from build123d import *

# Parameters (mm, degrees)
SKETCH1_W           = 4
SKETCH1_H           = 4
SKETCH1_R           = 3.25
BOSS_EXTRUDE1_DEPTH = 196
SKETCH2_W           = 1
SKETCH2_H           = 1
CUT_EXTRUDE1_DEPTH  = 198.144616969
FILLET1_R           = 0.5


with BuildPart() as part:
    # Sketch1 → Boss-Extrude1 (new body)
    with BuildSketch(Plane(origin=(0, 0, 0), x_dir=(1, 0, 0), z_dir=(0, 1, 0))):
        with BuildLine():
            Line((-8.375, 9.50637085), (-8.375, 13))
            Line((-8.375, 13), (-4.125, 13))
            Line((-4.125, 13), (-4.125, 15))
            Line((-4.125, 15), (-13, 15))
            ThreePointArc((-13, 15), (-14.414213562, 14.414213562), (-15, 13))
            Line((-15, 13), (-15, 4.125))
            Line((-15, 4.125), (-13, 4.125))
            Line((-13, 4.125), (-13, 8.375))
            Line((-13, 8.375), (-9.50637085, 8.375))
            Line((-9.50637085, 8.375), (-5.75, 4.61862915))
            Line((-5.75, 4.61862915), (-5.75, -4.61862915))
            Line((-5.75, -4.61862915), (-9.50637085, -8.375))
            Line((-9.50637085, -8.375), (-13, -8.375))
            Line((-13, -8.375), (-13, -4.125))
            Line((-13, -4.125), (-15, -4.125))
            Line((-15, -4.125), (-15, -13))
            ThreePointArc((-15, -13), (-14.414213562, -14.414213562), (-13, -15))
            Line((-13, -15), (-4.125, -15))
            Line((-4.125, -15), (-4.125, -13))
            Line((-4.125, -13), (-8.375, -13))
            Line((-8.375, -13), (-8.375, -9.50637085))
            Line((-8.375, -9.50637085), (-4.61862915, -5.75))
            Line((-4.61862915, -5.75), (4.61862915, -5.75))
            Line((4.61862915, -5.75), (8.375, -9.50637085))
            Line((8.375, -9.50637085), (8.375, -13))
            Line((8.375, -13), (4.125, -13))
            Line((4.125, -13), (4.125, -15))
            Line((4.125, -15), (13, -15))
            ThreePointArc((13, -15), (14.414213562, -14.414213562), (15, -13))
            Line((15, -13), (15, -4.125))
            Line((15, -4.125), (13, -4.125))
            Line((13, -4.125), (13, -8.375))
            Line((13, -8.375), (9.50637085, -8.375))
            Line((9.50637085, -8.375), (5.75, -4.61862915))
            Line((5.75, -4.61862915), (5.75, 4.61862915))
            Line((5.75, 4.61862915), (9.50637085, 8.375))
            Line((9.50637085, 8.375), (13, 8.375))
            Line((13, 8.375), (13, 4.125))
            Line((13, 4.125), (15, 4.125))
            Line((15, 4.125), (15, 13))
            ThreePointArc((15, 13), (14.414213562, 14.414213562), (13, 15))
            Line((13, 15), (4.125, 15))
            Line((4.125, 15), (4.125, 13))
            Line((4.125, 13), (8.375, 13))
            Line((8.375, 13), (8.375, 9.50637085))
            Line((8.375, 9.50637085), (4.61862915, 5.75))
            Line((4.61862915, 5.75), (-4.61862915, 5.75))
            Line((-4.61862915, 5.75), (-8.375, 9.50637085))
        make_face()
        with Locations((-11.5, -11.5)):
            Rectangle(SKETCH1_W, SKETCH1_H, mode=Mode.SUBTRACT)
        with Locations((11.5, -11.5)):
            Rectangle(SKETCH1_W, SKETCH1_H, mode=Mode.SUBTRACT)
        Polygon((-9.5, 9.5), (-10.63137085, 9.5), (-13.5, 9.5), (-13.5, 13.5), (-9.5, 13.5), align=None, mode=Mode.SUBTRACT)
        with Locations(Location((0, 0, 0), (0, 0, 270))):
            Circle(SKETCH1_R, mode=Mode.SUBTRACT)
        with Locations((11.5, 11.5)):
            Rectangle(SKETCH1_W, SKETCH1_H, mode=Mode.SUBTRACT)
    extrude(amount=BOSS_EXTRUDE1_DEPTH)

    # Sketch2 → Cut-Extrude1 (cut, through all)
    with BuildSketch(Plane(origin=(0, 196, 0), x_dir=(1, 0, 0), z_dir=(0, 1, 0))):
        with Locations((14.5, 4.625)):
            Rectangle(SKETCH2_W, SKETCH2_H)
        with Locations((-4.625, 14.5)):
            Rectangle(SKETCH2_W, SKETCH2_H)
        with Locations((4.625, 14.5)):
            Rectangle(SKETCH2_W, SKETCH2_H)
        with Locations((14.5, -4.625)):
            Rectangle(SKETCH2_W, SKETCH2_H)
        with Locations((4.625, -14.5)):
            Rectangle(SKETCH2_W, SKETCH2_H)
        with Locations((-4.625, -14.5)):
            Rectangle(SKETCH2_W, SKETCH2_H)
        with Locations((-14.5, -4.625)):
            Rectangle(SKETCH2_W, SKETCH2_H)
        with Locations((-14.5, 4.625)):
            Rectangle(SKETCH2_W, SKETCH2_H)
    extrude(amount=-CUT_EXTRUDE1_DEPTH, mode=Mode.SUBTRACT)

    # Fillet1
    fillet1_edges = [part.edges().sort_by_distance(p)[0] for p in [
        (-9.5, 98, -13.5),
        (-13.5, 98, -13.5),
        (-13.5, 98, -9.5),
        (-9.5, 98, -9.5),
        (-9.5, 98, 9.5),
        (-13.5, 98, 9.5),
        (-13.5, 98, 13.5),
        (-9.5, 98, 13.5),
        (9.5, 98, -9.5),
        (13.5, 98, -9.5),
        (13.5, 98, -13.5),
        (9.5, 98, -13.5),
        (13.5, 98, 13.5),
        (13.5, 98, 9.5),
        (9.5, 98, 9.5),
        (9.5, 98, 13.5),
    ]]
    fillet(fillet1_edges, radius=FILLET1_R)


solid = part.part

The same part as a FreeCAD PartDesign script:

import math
import FreeCAD as App
import Part
import Sketcher

V = App.Vector
Q = App.Units.Quantity


def edges_at(feature, points):
    """Names of the edges that pass closest to the given points."""
    edges = feature.Shape.Edges
    near = lambda p: min(range(len(edges)), key=lambda i: edges[i].distToShape(Part.Vertex(*p))[0])
    return sorted({f"Edge{near(p) + 1}" for p in points})


def add_polygon(sketch, points):
    """Adds a closed chain of lines whose ends are joined by coincident constraints."""
    first, n = sketch.GeometryCount, len(points)
    for a, b in zip(points, points[1:] + points[:1]):
        sketch.addGeometry(Part.LineSegment(App.Vector(*a, 0), App.Vector(*b, 0)), False)
    for i in range(n):
        sketch.addConstraint(Sketcher.Constraint("Coincident", first + i, 2, first + (i + 1) % n, 1))

doc = App.newDocument("Part")
params = doc.addObject("Spreadsheet::Sheet", "Params")
for row, (alias, value) in enumerate([
    ("sketch1_radius", "2 mm"),
    ("sketch1_diameter", "6.5 mm"),
    ("sketch1_width", "4 mm"),
    ("sketch1_width2", "4.25 mm"),
    ("pad1_length", "196 mm"),
    ("sketch2_width", "1 mm"),
    ("fillet_radius", "0.5 mm"),
], start=1):
    params.set(f"A{row}", alias)
    params.set(f"B{row}", "=" + value)
    params.setAlias(f"B{row}", alias)

body = doc.addObject("PartDesign::Body", "Body")

# Sketch on XZ plane
sketch1 = body.newObject("Sketcher::SketchObject", "Sketch")
sketch1.AttachmentSupport = (doc.getObject("XZ_Plane"), [""])
sketch1.MapMode = "FlatFace"
sketch1.addGeometry(Part.LineSegment(V(-8.375, -9.506371, 0), V(-8.375, -13, 0)), False)  # 0
sketch1.addGeometry(Part.LineSegment(V(-8.375, -13, 0), V(-4.125, -13, 0)), False)  # 1
sketch1.addGeometry(Part.LineSegment(V(-4.125, -13, 0), V(-4.125, -15, 0)), False)  # 2
sketch1.addGeometry(Part.LineSegment(V(-4.125, -15, 0), V(-13, -15, 0)), False)  # 3
sketch1.addGeometry(Part.ArcOfCircle(Part.Circle(V(-13, -13, 0), V(0, 0, 1), 2), math.radians(-180), math.radians(-90)), False)  # 4
sketch1.addGeometry(Part.LineSegment(V(-15, -13, 0), V(-15, -4.125, 0)), False)  # 5
sketch1.addGeometry(Part.LineSegment(V(-15, -4.125, 0), V(-13, -4.125, 0)), False)  # 6
sketch1.addGeometry(Part.LineSegment(V(-13, -4.125, 0), V(-13, -8.375, 0)), False)  # 7
sketch1.addGeometry(Part.LineSegment(V(-13, -8.375, 0), V(-9.506371, -8.375, 0)), False)  # 8
sketch1.addGeometry(Part.LineSegment(V(-9.506371, -8.375, 0), V(-5.75, -4.618629, 0)), False)  # 9
sketch1.addGeometry(Part.LineSegment(V(-5.75, -4.618629, 0), V(-5.75, 4.618629, 0)), False)  # 10
sketch1.addGeometry(Part.LineSegment(V(-5.75, 4.618629, 0), V(-9.506371, 8.375, 0)), False)  # 11
sketch1.addGeometry(Part.LineSegment(V(-9.506371, 8.375, 0), V(-13, 8.375, 0)), False)  # 12
sketch1.addGeometry(Part.LineSegment(V(-13, 8.375, 0), V(-13, 4.125, 0)), False)  # 13
sketch1.addGeometry(Part.LineSegment(V(-13, 4.125, 0), V(-15, 4.125, 0)), False)  # 14
sketch1.addGeometry(Part.LineSegment(V(-15, 4.125, 0), V(-15, 13, 0)), False)  # 15
sketch1.addGeometry(Part.ArcOfCircle(Part.Circle(V(-13, 13, 0), V(0, 0, 1), 2), math.radians(90), math.radians(180)), False)  # 16
sketch1.addGeometry(Part.LineSegment(V(-13, 15, 0), V(-4.125, 15, 0)), False)  # 17
sketch1.addGeometry(Part.LineSegment(V(-4.125, 15, 0), V(-4.125, 13, 0)), False)  # 18
sketch1.addGeometry(Part.LineSegment(V(-4.125, 13, 0), V(-8.375, 13, 0)), False)  # 19
sketch1.addGeometry(Part.LineSegment(V(-8.375, 13, 0), V(-8.375, 9.506371, 0)), False)  # 20
sketch1.addGeometry(Part.LineSegment(V(-8.375, 9.506371, 0), V(-4.618629, 5.75, 0)), False)  # 21
sketch1.addGeometry(Part.LineSegment(V(-4.618629, 5.75, 0), V(4.618629, 5.75, 0)), False)  # 22
sketch1.addGeometry(Part.LineSegment(V(4.618629, 5.75, 0), V(8.375, 9.506371, 0)), False)  # 23
sketch1.addGeometry(Part.LineSegment(V(8.375, 9.506371, 0), V(8.375, 13, 0)), False)  # 24
sketch1.addGeometry(Part.LineSegment(V(8.375, 13, 0), V(4.125, 13, 0)), False)  # 25
sketch1.addGeometry(Part.LineSegment(V(4.125, 13, 0), V(4.125, 15, 0)), False)  # 26
sketch1.addGeometry(Part.LineSegment(V(4.125, 15, 0), V(13, 15, 0)), False)  # 27
sketch1.addGeometry(Part.ArcOfCircle(Part.Circle(V(13, 13, 0), V(0, 0, 1), 2), math.radians(0), math.radians(90)), False)  # 28
sketch1.addGeometry(Part.LineSegment(V(15, 13, 0), V(15, 4.125, 0)), False)  # 29
sketch1.addGeometry(Part.LineSegment(V(15, 4.125, 0), V(13, 4.125, 0)), False)  # 30
sketch1.addGeometry(Part.LineSegment(V(13, 4.125, 0), V(13, 8.375, 0)), False)  # 31
sketch1.addGeometry(Part.LineSegment(V(13, 8.375, 0), V(9.506371, 8.375, 0)), False)  # 32
sketch1.addGeometry(Part.LineSegment(V(9.506371, 8.375, 0), V(5.75, 4.618629, 0)), False)  # 33
sketch1.addGeometry(Part.LineSegment(V(5.75, 4.618629, 0), V(5.75, -4.618629, 0)), False)  # 34
sketch1.addGeometry(Part.LineSegment(V(5.75, -4.618629, 0), V(9.506371, -8.375, 0)), False)  # 35
sketch1.addGeometry(Part.LineSegment(V(9.506371, -8.375, 0), V(13, -8.375, 0)), False)  # 36
sketch1.addGeometry(Part.LineSegment(V(13, -8.375, 0), V(13, -4.125, 0)), False)  # 37
sketch1.addGeometry(Part.LineSegment(V(13, -4.125, 0), V(15, -4.125, 0)), False)  # 38
sketch1.addGeometry(Part.LineSegment(V(15, -4.125, 0), V(15, -13, 0)), False)  # 39
sketch1.addGeometry(Part.ArcOfCircle(Part.Circle(V(13, -13, 0), V(0, 0, 1), 2), math.radians(-90), math.radians(0)), False)  # 40
sketch1.addGeometry(Part.LineSegment(V(13, -15, 0), V(4.125, -15, 0)), False)  # 41
sketch1.addGeometry(Part.LineSegment(V(4.125, -15, 0), V(4.125, -13, 0)), False)  # 42
sketch1.addGeometry(Part.LineSegment(V(4.125, -13, 0), V(8.375, -13, 0)), False)  # 43
sketch1.addGeometry(Part.LineSegment(V(8.375, -13, 0), V(8.375, -9.506371, 0)), False)  # 44
sketch1.addGeometry(Part.LineSegment(V(8.375, -9.506371, 0), V(4.618629, -5.75, 0)), False)  # 45
sketch1.addGeometry(Part.LineSegment(V(4.618629, -5.75, 0), V(-4.618629, -5.75, 0)), False)  # 46
sketch1.addGeometry(Part.LineSegment(V(-4.618629, -5.75, 0), V(-8.375, -9.506371, 0)), False)  # 47
add_polygon(sketch1, [(-9.5, 13.5), (-13.5, 13.5), (-13.5, 9.5), (-9.5, 9.5)])  # lines 48-51
add_polygon(sketch1, [(13.5, 13.5), (9.5, 13.5), (9.5, 9.5), (13.5, 9.5)])  # lines 52-55
add_polygon(sketch1, [(-9.5, -13.5), (-9.5, -9.5), (-13.5, -9.5), (-13.5, -13.5)])  # lines 56-59
sketch1.addGeometry(Part.Circle(V(0, 0, 0), V(0, 0, 1), 3.25), False)  # 60
add_polygon(sketch1, [(13.5, -9.5), (9.5, -9.5), (9.5, -13.5), (13.5, -13.5)])  # lines 61-64
sketch1.addConstraint(Sketcher.Constraint("Coincident", 0, 2, 1, 1))
sketch1.addConstraint(Sketcher.Constraint("Coincident", 1, 2, 2, 1))
sketch1.addConstraint(Sketcher.Constraint("Coincident", 2, 2, 3, 1))
sketch1.addConstraint(Sketcher.Constraint("Tangent", 3, 2, 4, 2))
sketch1.addConstraint(Sketcher.Constraint("Tangent", 4, 1, 5, 1))
sketch1.addConstraint(Sketcher.Constraint("Coincident", 5, 2, 6, 1))
sketch1.addConstraint(Sketcher.Constraint("Coincident", 6, 2, 7, 1))
sketch1.addConstraint(Sketcher.Constraint("Coincident", 7, 2, 8, 1))
sketch1.addConstraint(Sketcher.Constraint("Coincident", 8, 2, 9, 1))
sketch1.addConstraint(Sketcher.Constraint("Coincident", 9, 2, 10, 1))
sketch1.addConstraint(Sketcher.Constraint("Coincident", 10, 2, 11, 1))
sketch1.addConstraint(Sketcher.Constraint("Coincident", 11, 2, 12, 1))
sketch1.addConstraint(Sketcher.Constraint("Coincident", 12, 2, 13, 1))
sketch1.addConstraint(Sketcher.Constraint("Coincident", 13, 2, 14, 1))
sketch1.addConstraint(Sketcher.Constraint("Coincident", 14, 2, 15, 1))
sketch1.addConstraint(Sketcher.Constraint("Tangent", 15, 2, 16, 2))
sketch1.addConstraint(Sketcher.Constraint("Tangent", 16, 1, 17, 1))
sketch1.addConstraint(Sketcher.Constraint("Coincident", 17, 2, 18, 1))
sketch1.addConstraint(Sketcher.Constraint("Coincident", 18, 2, 19, 1))
sketch1.addConstraint(Sketcher.Constraint("Coincident", 19, 2, 20, 1))
sketch1.addConstraint(Sketcher.Constraint("Coincident", 20, 2, 21, 1))
sketch1.addConstraint(Sketcher.Constraint("Coincident", 21, 2, 22, 1))
sketch1.addConstraint(Sketcher.Constraint("Coincident", 22, 2, 23, 1))
sketch1.addConstraint(Sketcher.Constraint("Coincident", 23, 2, 24, 1))
sketch1.addConstraint(Sketcher.Constraint("Coincident", 24, 2, 25, 1))
sketch1.addConstraint(Sketcher.Constraint("Coincident", 25, 2, 26, 1))
sketch1.addConstraint(Sketcher.Constraint("Coincident", 26, 2, 27, 1))
sketch1.addConstraint(Sketcher.Constraint("Tangent", 27, 2, 28, 2))
sketch1.addConstraint(Sketcher.Constraint("Tangent", 28, 1, 29, 1))
sketch1.addConstraint(Sketcher.Constraint("Coincident", 29, 2, 30, 1))
sketch1.addConstraint(Sketcher.Constraint("Coincident", 30, 2, 31, 1))
sketch1.addConstraint(Sketcher.Constraint("Coincident", 31, 2, 32, 1))
sketch1.addConstraint(Sketcher.Constraint("Coincident", 32, 2, 33, 1))
sketch1.addConstraint(Sketcher.Constraint("Coincident", 33, 2, 34, 1))
sketch1.addConstraint(Sketcher.Constraint("Coincident", 34, 2, 35, 1))
sketch1.addConstraint(Sketcher.Constraint("Coincident", 35, 2, 36, 1))
sketch1.addConstraint(Sketcher.Constraint("Coincident", 36, 2, 37, 1))
sketch1.addConstraint(Sketcher.Constraint("Coincident", 37, 2, 38, 1))
sketch1.addConstraint(Sketcher.Constraint("Coincident", 38, 2, 39, 1))
sketch1.addConstraint(Sketcher.Constraint("Tangent", 39, 2, 40, 2))
sketch1.addConstraint(Sketcher.Constraint("Tangent", 40, 1, 41, 1))
sketch1.addConstraint(Sketcher.Constraint("Coincident", 41, 2, 42, 1))
sketch1.addConstraint(Sketcher.Constraint("Coincident", 42, 2, 43, 1))
sketch1.addConstraint(Sketcher.Constraint("Coincident", 43, 2, 44, 1))
sketch1.addConstraint(Sketcher.Constraint("Coincident", 44, 2, 45, 1))
sketch1.addConstraint(Sketcher.Constraint("Coincident", 45, 2, 46, 1))
sketch1.addConstraint(Sketcher.Constraint("Coincident", 46, 2, 47, 1))
sketch1.addConstraint(Sketcher.Constraint("Coincident", 47, 2, 0, 1))
sketch1.addConstraint(Sketcher.Constraint("Vertical", 0))
sketch1.addConstraint(Sketcher.Constraint("Horizontal", 1))
sketch1.addConstraint(Sketcher.Constraint("Vertical", 2))
sketch1.addConstraint(Sketcher.Constraint("Horizontal", 3))
sketch1.addConstraint(Sketcher.Constraint("Vertical", 5))
sketch1.addConstraint(Sketcher.Constraint("Horizontal", 6))
sketch1.addConstraint(Sketcher.Constraint("Vertical", 7))
sketch1.addConstraint(Sketcher.Constraint("Horizontal", 8))
sketch1.addConstraint(Sketcher.Constraint("Vertical", 10))
sketch1.addConstraint(Sketcher.Constraint("Horizontal", 12))
sketch1.addConstraint(Sketcher.Constraint("Vertical", 13))
sketch1.addConstraint(Sketcher.Constraint("Horizontal", 14))
sketch1.addConstraint(Sketcher.Constraint("Vertical", 15))
sketch1.addConstraint(Sketcher.Constraint("Horizontal", 17))
sketch1.addConstraint(Sketcher.Constraint("Vertical", 18))
sketch1.addConstraint(Sketcher.Constraint("Horizontal", 19))
sketch1.addConstraint(Sketcher.Constraint("Vertical", 20))
sketch1.addConstraint(Sketcher.Constraint("Horizontal", 22))
sketch1.addConstraint(Sketcher.Constraint("Vertical", 24))
sketch1.addConstraint(Sketcher.Constraint("Horizontal", 25))
sketch1.addConstraint(Sketcher.Constraint("Vertical", 26))
sketch1.addConstraint(Sketcher.Constraint("Horizontal", 27))
sketch1.addConstraint(Sketcher.Constraint("Vertical", 29))
sketch1.addConstraint(Sketcher.Constraint("Horizontal", 30))
sketch1.addConstraint(Sketcher.Constraint("Vertical", 31))
sketch1.addConstraint(Sketcher.Constraint("Horizontal", 32))
sketch1.addConstraint(Sketcher.Constraint("Vertical", 34))
sketch1.addConstraint(Sketcher.Constraint("Horizontal", 36))
sketch1.addConstraint(Sketcher.Constraint("Vertical", 37))
sketch1.addConstraint(Sketcher.Constraint("Horizontal", 38))
sketch1.addConstraint(Sketcher.Constraint("Vertical", 39))
sketch1.addConstraint(Sketcher.Constraint("Horizontal", 41))
sketch1.addConstraint(Sketcher.Constraint("Vertical", 42))
sketch1.addConstraint(Sketcher.Constraint("Horizontal", 43))
sketch1.addConstraint(Sketcher.Constraint("Vertical", 44))
sketch1.addConstraint(Sketcher.Constraint("Horizontal", 46))
sketch1.addConstraint(Sketcher.Constraint("Horizontal", 48))
sketch1.addConstraint(Sketcher.Constraint("Vertical", 49))
sketch1.addConstraint(Sketcher.Constraint("Horizontal", 50))
sketch1.addConstraint(Sketcher.Constraint("Vertical", 51))
sketch1.addConstraint(Sketcher.Constraint("Horizontal", 52))
sketch1.addConstraint(Sketcher.Constraint("Vertical", 53))
sketch1.addConstraint(Sketcher.Constraint("Horizontal", 54))
sketch1.addConstraint(Sketcher.Constraint("Vertical", 55))
sketch1.addConstraint(Sketcher.Constraint("Vertical", 56))
sketch1.addConstraint(Sketcher.Constraint("Horizontal", 57))
sketch1.addConstraint(Sketcher.Constraint("Vertical", 58))
sketch1.addConstraint(Sketcher.Constraint("Horizontal", 59))
sketch1.addConstraint(Sketcher.Constraint("Horizontal", 61))
sketch1.addConstraint(Sketcher.Constraint("Vertical", 62))
sketch1.addConstraint(Sketcher.Constraint("Horizontal", 63))
sketch1.addConstraint(Sketcher.Constraint("Vertical", 64))
sketch1.addConstraint(Sketcher.Constraint("Coincident", 60, 3, -1, 1))
sketch1.addConstraint(Sketcher.Constraint("Equal", 4, 16))
sketch1.addConstraint(Sketcher.Constraint("Equal", 16, 28))
sketch1.addConstraint(Sketcher.Constraint("Equal", 28, 40))
sketch1.addConstraint(Sketcher.Constraint("Symmetric", 4, 3, 28, 3, -1, 1))
sketch1.addConstraint(Sketcher.Constraint("Symmetric", 16, 3, 40, 3, -1, 1))
sketch1.addConstraint(Sketcher.Constraint("Symmetric", 0, 2, 24, 2, -1, 1))
sketch1.addConstraint(Sketcher.Constraint("Symmetric", 6, 2, 30, 2, -1, 1))
sketch1.addConstraint(Sketcher.Constraint("Symmetric", 8, 2, 32, 2, -1, 1))
sketch1.addConstraint(Sketcher.Constraint("Symmetric", 9, 2, 33, 2, -1, 1))
sketch1.addConstraint(Sketcher.Constraint("Symmetric", 11, 2, 35, 2, -1, 1))
sketch1.addConstraint(Sketcher.Constraint("Symmetric", 13, 2, 37, 2, -1, 1))
sketch1.addConstraint(Sketcher.Constraint("Symmetric", 18, 2, 42, 2, -1, 1))
sketch1.addConstraint(Sketcher.Constraint("Symmetric", 20, 2, 44, 2, -1, 1))
sketch1.addConstraint(Sketcher.Constraint("Symmetric", 21, 2, 45, 2, -1, 1))
sketch1.addConstraint(Sketcher.Constraint("Symmetric", 53, 2, 56, 2, -1, 1))
sketch1.addConstraint(Sketcher.Constraint("Symmetric", 55, 2, 58, 2, -1, 1))
sketch1.addConstraint(Sketcher.Constraint("Symmetric", 50, 2, 61, 2, -1, 1))
sketch1.addConstraint(Sketcher.Constraint("Symmetric", 48, 2, 63, 2, -1, 1))
sketch1.addConstraint(Sketcher.Constraint("Symmetric", 16, 3, 28, 3, -2))
sketch1.addConstraint(Sketcher.Constraint("Symmetric", 20, 2, 23, 2, -2))
sketch1.addConstraint(Sketcher.Constraint("Symmetric", 18, 2, 25, 2, -2))
sketch1.addConstraint(Sketcher.Constraint("Symmetric", 13, 2, 30, 2, -2))
sketch1.addConstraint(Sketcher.Constraint("Symmetric", 11, 2, 32, 2, -2))
sketch1.addConstraint(Sketcher.Constraint("Symmetric", 51, 2, 52, 2, -2))
sketch1.addConstraint(Sketcher.Constraint("Symmetric", 49, 2, 54, 2, -2))
sketch1.addConstraint(Sketcher.Constraint("Perpendicular", 9, 11))
sketch1.addConstraint(Sketcher.Constraint("Parallel", 11, 21))
sketch1.addConstraint(Sketcher.Constraint("Perpendicular", 21, 23))
sketch1.addConstraint(Sketcher.Constraint("Perpendicular", 33, 35))
sketch1.addConstraint(Sketcher.Constraint("Perpendicular", 45, 47))
sketch1.addConstraint(Sketcher.Constraint("Horizontal", 40, 3, 0, 2))
sketch1.addConstraint(Sketcher.Constraint("Horizontal", 10, 2, 33, 2))
sketch1.addConstraint(Sketcher.Constraint("Horizontal", 44, 2, 47, 2))
sketch1.addConstraint(Sketcher.Constraint("Vertical", 3, 2, 6, 2))
sketch1.addConstraint(Sketcher.Constraint("Vertical", 2, 2, 17, 2))
sketch1.addConstraint(Sketcher.Constraint("Equal", 36, 0))
sketch1.addConstraint(Sketcher.Constraint("Equal", 41, 5))
sketch1.addConstraint(Sketcher.Constraint("Equal", 43, 7))
sketch1.addConstraint(Sketcher.Constraint("Equal", 46, 10))
sketch1.addConstraint(Sketcher.Constraint("Equal", 63, 49))
sketch1.addConstraint(Sketcher.Constraint("Equal", 11, 21))
sketch1.addConstraint(Sketcher.Constraint("Radius", 4, Q("2 mm")))
sketch1.addConstraint(Sketcher.Constraint("Diameter", 60, Q("6.5 mm")))
sketch1.addConstraint(Sketcher.Constraint("DistanceX", 48, 2, 48, 1, Q("4 mm")))
sketch1.addConstraint(Sketcher.Constraint("DistanceX", 4, 3, -1, 1, Q("13 mm")))
sketch1.addConstraint(Sketcher.Constraint("DistanceX", 1, 1, 1, 2, Q("4.25 mm")))
sketch1.addConstraint(Sketcher.Constraint("DistanceX", 48, 2, -1, 1, Q("13.5 mm")))
sketch1.addConstraint(Sketcher.Constraint("DistanceY", -1, 1, 48, 2, Q("13.5 mm")))
sketch1.addConstraint(Sketcher.Constraint("DistanceX", 3, 2, 3, 1, Q("8.875 mm")))
sketch1.addConstraint(Sketcher.Constraint("DistanceX", 9, 2, -1, 1, Q("5.75 mm")))
sketch1.addConstraint(Sketcher.Constraint("DistanceX", 8, 1, 8, 2, Q("3.493629 mm")))
sketch1.setExpression("Constraints[158]", "Params.sketch1_radius")
sketch1.setExpression("Constraints[159]", "Params.sketch1_diameter")
sketch1.setExpression("Constraints[160]", "Params.sketch1_width")
sketch1.setExpression("Constraints[162]", "Params.sketch1_width2")
pad1 = body.newObject("PartDesign::Pad", "Pad")
pad1.Profile = sketch1
pad1.setExpression("Length", "Params.pad1_length")
pad1.Reversed = True

# Sketch on XZ plane
sketch2 = body.newObject("Sketcher::SketchObject", "Sketch001")
sketch2.AttachmentSupport = (doc.getObject("XZ_Plane"), [""])
sketch2.MapMode = "FlatFace"
sketch2.AttachmentOffset = App.Placement(V(0, 0, -196), App.Rotation())
add_polygon(sketch2, [(14, -5.125), (14, -4.125), (15, -4.125), (15, -5.125)])  # lines 0-3
add_polygon(sketch2, [(-5.125, -15), (-5.125, -14), (-4.125, -14), (-4.125, -15)])  # lines 4-7
add_polygon(sketch2, [(4.125, -15), (4.125, -14), (5.125, -14), (5.125, -15)])  # lines 8-11
add_polygon(sketch2, [(14, 4.125), (14, 5.125), (15, 5.125), (15, 4.125)])  # lines 12-15
add_polygon(sketch2, [(4.125, 14), (4.125, 15), (5.125, 15), (5.125, 14)])  # lines 16-19
add_polygon(sketch2, [(-5.125, 14), (-5.125, 15), (-4.125, 15), (-4.125, 14)])  # lines 20-23
add_polygon(sketch2, [(-15, 4.125), (-15, 5.125), (-14, 5.125), (-14, 4.125)])  # lines 24-27
add_polygon(sketch2, [(-15, -5.125), (-15, -4.125), (-14, -4.125), (-14, -5.125)])  # lines 28-31
sketch2.addConstraint(Sketcher.Constraint("Vertical", 0))
sketch2.addConstraint(Sketcher.Constraint("Horizontal", 1))
sketch2.addConstraint(Sketcher.Constraint("Vertical", 2))
sketch2.addConstraint(Sketcher.Constraint("Horizontal", 3))
sketch2.addConstraint(Sketcher.Constraint("Vertical", 4))
sketch2.addConstraint(Sketcher.Constraint("Horizontal", 5))
sketch2.addConstraint(Sketcher.Constraint("Vertical", 6))
sketch2.addConstraint(Sketcher.Constraint("Horizontal", 7))
sketch2.addConstraint(Sketcher.Constraint("Vertical", 8))
sketch2.addConstraint(Sketcher.Constraint("Horizontal", 9))
sketch2.addConstraint(Sketcher.Constraint("Vertical", 10))
sketch2.addConstraint(Sketcher.Constraint("Horizontal", 11))
sketch2.addConstraint(Sketcher.Constraint("Vertical", 12))
sketch2.addConstraint(Sketcher.Constraint("Horizontal", 13))
sketch2.addConstraint(Sketcher.Constraint("Vertical", 14))
sketch2.addConstraint(Sketcher.Constraint("Horizontal", 15))
sketch2.addConstraint(Sketcher.Constraint("Vertical", 16))
sketch2.addConstraint(Sketcher.Constraint("Horizontal", 17))
sketch2.addConstraint(Sketcher.Constraint("Vertical", 18))
sketch2.addConstraint(Sketcher.Constraint("Horizontal", 19))
sketch2.addConstraint(Sketcher.Constraint("Vertical", 20))
sketch2.addConstraint(Sketcher.Constraint("Horizontal", 21))
sketch2.addConstraint(Sketcher.Constraint("Vertical", 22))
sketch2.addConstraint(Sketcher.Constraint("Horizontal", 23))
sketch2.addConstraint(Sketcher.Constraint("Vertical", 24))
sketch2.addConstraint(Sketcher.Constraint("Horizontal", 25))
sketch2.addConstraint(Sketcher.Constraint("Vertical", 26))
sketch2.addConstraint(Sketcher.Constraint("Horizontal", 27))
sketch2.addConstraint(Sketcher.Constraint("Vertical", 28))
sketch2.addConstraint(Sketcher.Constraint("Horizontal", 29))
sketch2.addConstraint(Sketcher.Constraint("Vertical", 30))
sketch2.addConstraint(Sketcher.Constraint("Horizontal", 31))
sketch2.addConstraint(Sketcher.Constraint("Symmetric", 6, 2, 16, 2, -1, 1))
sketch2.addConstraint(Sketcher.Constraint("Symmetric", 4, 2, 18, 2, -1, 1))
sketch2.addConstraint(Sketcher.Constraint("Symmetric", 10, 2, 20, 2, -1, 1))
sketch2.addConstraint(Sketcher.Constraint("Symmetric", 8, 2, 22, 2, -1, 1))
sketch2.addConstraint(Sketcher.Constraint("Symmetric", 2, 2, 24, 2, -1, 1))
sketch2.addConstraint(Sketcher.Constraint("Symmetric", 0, 2, 26, 2, -1, 1))
sketch2.addConstraint(Sketcher.Constraint("Symmetric", 14, 2, 28, 2, -1, 1))
sketch2.addConstraint(Sketcher.Constraint("Symmetric", 12, 2, 30, 2, -1, 1))
sketch2.addConstraint(Sketcher.Constraint("Symmetric", 5, 2, 8, 2, -2))
sketch2.addConstraint(Sketcher.Constraint("Symmetric", 7, 2, 10, 2, -2))
sketch2.addConstraint(Sketcher.Constraint("Symmetric", 13, 2, 24, 2, -2))
sketch2.addConstraint(Sketcher.Constraint("Symmetric", 15, 2, 26, 2, -2))
sketch2.addConstraint(Sketcher.Constraint("Equal", 3, 5))
sketch2.addConstraint(Sketcher.Constraint("Equal", 31, 0))
sketch2.addConstraint(Sketcher.Constraint("Equal", 2, 4))
sketch2.addConstraint(Sketcher.Constraint("DistanceX", 1, 1, 1, 2, Q("1 mm")))
sketch2.addConstraint(Sketcher.Constraint("DistanceX", -1, 1, 0, 2, Q("14 mm")))
sketch2.addConstraint(Sketcher.Constraint("DistanceY", 4, 2, -1, 1, Q("14 mm")))
sketch2.addConstraint(Sketcher.Constraint("DistanceX", 5, 2, 8, 2, Q("8.25 mm")))
sketch2.addConstraint(Sketcher.Constraint("DistanceY", 0, 2, 12, 2, Q("9.25 mm")))
sketch2.setExpression("Constraints[79]", "Params.sketch2_width")
pocket1 = body.newObject("PartDesign::Pocket", "Pocket")
pocket1.Profile = sketch2
pocket1.Type = "ThroughAll"
pocket1.Reversed = True
doc.recompute()

fillet = body.newObject("PartDesign::Fillet", "Fillet")
fillet.Base = (pocket1, edges_at(pocket1, [
    (-9.5, 98, -13.5),
    (-13.5, 98, -13.5),
    (-13.5, 98, -9.5),
    (-9.5, 98, -9.5),
    (-9.5, 98, 9.5),
    (-13.5, 98, 9.5),
    (-13.5, 98, 13.5),
    (-9.5, 98, 13.5),
    (9.5, 98, -9.5),
    (13.5, 98, -9.5),
    (13.5, 98, -13.5),
    (9.5, 98, -13.5),
    (13.5, 98, 13.5),
    (13.5, 98, 9.5),
    (9.5, 98, 9.5),
    (9.5, 98, 13.5),
]))
fillet.setExpression("Radius", "Params.fillet_radius")

doc.recompute()
